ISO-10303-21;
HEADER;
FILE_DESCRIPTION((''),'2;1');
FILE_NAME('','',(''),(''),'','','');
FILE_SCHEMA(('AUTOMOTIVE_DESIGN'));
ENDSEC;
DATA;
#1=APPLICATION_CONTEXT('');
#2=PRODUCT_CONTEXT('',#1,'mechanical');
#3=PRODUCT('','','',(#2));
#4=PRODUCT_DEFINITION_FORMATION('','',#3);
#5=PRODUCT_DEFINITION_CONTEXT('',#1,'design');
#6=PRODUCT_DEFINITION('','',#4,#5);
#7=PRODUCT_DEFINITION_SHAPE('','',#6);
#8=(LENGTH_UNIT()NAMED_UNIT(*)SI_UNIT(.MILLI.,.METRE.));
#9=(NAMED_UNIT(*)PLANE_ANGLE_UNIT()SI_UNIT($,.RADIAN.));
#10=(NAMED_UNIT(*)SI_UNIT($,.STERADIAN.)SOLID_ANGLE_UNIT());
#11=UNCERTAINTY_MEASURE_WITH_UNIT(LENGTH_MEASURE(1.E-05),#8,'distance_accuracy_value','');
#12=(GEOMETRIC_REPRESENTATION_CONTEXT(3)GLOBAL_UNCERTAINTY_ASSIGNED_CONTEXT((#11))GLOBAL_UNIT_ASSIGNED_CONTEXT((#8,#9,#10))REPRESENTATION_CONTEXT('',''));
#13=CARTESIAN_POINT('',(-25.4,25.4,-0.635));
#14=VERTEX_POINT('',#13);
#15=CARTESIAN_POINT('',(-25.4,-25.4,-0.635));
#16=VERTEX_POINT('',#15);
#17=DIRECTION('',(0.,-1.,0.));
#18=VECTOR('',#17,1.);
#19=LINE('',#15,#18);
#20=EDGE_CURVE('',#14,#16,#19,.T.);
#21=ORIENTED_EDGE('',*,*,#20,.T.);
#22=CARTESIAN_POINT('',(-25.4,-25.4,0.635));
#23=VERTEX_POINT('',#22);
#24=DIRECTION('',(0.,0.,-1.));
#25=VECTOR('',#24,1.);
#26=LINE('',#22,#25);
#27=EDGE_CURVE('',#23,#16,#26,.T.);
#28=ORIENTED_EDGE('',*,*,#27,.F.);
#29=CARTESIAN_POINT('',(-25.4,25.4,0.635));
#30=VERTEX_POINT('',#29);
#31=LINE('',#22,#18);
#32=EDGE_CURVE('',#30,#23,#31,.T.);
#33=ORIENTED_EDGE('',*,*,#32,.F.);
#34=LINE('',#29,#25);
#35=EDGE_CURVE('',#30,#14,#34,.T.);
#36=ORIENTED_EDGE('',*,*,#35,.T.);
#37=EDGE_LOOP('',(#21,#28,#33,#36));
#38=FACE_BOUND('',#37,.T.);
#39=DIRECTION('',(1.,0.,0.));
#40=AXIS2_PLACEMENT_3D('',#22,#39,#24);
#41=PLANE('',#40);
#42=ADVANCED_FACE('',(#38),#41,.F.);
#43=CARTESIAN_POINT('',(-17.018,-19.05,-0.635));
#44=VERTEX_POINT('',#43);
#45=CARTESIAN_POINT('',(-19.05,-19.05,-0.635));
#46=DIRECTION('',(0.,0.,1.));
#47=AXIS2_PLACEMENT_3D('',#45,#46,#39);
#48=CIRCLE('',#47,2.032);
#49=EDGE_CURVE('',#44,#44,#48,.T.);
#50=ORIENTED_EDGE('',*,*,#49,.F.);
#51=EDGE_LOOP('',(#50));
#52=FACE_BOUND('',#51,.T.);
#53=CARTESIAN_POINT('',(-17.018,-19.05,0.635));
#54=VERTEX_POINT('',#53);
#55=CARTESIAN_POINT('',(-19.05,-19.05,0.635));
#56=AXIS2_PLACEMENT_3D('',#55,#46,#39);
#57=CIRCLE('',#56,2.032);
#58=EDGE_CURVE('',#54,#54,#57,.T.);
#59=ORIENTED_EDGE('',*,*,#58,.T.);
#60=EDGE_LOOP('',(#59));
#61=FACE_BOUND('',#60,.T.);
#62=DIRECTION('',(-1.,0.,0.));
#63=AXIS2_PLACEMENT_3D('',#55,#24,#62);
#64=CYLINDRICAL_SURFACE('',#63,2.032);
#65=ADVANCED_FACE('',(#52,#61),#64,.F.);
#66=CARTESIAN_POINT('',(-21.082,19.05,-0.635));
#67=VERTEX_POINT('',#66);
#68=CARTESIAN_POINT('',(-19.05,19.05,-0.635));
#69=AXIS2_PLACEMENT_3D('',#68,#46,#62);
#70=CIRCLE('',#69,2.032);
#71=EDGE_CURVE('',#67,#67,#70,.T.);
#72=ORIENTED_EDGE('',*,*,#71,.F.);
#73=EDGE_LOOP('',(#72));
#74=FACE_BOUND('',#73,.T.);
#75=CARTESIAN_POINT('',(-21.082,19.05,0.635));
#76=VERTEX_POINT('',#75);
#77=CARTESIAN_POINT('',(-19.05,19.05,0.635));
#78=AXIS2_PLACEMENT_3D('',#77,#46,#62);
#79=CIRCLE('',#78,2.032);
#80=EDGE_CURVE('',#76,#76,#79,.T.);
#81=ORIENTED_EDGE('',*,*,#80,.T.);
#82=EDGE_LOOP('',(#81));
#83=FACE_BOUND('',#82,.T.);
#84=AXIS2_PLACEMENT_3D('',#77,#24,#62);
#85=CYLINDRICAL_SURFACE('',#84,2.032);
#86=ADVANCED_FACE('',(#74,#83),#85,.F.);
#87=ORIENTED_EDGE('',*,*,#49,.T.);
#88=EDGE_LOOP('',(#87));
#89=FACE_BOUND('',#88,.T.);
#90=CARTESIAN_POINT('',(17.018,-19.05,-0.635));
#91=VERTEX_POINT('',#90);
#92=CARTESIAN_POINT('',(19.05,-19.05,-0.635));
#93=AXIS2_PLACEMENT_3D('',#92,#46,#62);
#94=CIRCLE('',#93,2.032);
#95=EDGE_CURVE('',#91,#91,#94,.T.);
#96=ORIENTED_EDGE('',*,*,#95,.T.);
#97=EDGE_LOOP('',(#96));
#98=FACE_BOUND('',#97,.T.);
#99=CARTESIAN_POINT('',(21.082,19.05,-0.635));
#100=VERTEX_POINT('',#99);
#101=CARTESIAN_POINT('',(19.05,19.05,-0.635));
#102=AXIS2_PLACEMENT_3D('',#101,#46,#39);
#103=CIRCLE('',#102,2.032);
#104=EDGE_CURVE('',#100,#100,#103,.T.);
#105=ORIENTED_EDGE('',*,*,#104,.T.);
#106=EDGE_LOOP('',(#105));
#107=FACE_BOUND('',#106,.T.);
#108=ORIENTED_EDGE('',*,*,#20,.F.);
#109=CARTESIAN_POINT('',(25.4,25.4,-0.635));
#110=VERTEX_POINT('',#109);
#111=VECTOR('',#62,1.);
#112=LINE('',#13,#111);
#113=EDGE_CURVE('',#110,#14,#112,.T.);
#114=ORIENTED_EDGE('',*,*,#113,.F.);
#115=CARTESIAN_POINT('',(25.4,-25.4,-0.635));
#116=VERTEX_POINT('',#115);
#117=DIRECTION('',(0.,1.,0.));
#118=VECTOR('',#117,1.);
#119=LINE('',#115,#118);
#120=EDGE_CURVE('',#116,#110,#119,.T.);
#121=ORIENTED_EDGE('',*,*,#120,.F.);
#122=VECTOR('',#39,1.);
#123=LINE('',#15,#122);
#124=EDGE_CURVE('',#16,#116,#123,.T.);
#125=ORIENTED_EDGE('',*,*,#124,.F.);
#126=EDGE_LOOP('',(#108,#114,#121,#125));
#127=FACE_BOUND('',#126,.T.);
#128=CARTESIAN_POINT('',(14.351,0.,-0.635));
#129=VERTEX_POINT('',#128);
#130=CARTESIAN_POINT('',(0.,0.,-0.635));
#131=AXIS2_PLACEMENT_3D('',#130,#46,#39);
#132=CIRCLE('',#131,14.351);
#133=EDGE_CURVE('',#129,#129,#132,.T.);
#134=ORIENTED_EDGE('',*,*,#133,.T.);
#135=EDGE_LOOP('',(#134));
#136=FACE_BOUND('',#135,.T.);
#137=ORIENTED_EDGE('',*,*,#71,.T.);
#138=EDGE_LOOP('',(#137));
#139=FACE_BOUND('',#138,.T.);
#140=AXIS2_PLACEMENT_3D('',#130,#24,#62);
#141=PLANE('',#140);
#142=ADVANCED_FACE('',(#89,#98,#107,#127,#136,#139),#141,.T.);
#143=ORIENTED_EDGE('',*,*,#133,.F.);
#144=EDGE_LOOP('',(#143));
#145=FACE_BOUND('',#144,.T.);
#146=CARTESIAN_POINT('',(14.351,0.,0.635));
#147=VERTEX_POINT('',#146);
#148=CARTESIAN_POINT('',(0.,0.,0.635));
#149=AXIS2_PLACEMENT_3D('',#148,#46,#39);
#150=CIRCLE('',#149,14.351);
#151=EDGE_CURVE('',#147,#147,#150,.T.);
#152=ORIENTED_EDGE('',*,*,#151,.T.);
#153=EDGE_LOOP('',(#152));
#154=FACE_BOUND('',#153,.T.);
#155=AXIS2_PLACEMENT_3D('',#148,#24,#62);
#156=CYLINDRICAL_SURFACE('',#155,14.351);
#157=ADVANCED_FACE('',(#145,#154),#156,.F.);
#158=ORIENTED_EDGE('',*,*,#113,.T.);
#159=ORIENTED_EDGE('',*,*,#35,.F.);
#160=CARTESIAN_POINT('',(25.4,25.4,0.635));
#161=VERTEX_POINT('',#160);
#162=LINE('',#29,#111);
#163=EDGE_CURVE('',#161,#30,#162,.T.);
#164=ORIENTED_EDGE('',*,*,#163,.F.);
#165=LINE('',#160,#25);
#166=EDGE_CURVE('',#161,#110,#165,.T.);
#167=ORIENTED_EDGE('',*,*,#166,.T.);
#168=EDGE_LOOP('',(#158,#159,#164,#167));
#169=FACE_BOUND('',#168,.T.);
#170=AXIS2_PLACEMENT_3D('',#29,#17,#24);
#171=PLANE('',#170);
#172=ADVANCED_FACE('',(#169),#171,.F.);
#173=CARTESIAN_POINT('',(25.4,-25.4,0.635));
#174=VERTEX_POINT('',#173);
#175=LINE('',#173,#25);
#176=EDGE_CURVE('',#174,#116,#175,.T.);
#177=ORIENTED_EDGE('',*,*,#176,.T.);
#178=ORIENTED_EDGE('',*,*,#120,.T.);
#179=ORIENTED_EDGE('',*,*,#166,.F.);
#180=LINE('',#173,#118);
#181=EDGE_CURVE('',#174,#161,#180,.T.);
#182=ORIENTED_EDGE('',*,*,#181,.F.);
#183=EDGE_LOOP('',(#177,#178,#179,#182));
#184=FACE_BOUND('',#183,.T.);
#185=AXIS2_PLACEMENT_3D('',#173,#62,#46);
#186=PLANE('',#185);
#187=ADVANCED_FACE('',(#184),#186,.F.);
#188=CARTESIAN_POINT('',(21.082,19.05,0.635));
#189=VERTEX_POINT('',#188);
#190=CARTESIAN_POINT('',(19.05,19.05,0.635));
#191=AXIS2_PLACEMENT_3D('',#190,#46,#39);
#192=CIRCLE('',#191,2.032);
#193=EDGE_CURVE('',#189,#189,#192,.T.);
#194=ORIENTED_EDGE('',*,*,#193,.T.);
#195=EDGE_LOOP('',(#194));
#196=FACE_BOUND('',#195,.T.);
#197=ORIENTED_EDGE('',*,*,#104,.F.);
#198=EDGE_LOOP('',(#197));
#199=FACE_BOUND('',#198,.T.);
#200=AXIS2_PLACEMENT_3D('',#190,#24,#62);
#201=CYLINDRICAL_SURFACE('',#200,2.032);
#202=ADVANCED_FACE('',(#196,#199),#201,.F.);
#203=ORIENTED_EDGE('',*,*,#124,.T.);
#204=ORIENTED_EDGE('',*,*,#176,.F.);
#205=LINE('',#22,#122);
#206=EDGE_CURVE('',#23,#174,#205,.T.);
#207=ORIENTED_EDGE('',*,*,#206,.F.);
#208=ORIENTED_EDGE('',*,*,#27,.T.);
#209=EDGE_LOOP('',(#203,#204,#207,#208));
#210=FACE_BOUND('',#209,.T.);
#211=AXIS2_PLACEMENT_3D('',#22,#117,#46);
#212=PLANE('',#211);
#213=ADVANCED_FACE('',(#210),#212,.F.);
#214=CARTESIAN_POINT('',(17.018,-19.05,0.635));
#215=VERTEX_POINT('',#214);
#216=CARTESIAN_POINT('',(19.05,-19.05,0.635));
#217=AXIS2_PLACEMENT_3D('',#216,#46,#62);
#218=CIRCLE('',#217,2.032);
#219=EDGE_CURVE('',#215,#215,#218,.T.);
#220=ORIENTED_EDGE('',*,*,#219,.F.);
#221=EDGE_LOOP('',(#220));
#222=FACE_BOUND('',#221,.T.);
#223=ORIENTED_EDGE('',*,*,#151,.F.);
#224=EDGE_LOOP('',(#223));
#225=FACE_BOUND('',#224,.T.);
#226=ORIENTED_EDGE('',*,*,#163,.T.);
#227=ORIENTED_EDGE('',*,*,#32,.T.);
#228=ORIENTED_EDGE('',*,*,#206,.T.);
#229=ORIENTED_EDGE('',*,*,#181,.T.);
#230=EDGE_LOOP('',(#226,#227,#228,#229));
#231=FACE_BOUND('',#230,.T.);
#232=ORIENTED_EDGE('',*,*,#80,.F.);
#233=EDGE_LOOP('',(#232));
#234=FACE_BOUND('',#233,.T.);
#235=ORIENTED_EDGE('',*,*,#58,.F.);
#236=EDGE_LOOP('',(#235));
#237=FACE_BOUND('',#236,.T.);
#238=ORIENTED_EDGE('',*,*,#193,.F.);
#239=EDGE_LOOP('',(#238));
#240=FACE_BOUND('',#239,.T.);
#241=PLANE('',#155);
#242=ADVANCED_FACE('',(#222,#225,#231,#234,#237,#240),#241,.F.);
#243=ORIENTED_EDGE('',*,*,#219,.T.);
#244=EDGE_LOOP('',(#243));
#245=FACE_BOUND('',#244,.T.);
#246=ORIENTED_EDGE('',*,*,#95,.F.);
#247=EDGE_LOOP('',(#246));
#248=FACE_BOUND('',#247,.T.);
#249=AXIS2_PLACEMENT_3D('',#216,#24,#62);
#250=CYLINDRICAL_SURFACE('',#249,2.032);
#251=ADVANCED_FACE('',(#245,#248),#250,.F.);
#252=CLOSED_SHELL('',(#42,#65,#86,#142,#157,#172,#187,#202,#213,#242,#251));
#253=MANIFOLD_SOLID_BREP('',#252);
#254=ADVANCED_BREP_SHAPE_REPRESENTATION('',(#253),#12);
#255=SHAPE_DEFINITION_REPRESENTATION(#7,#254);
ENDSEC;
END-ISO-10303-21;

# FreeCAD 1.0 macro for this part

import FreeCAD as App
import Part
import Sketcher

V = App.Vector
Q = App.Units.Quantity

doc = App.newDocument("Part")
body = doc.addObject("PartDesign::Body", "Body")

sketch1 = body.newObject("Sketcher::SketchObject", "Sketch")
sketch1.AttachmentSupport = (doc.getObject("XY_Plane"), [""])
sketch1.MapMode = "FlatFace"
sketch1.addGeometry(Part.LineSegment(V(-25.4, 25.4, 0), V(-25.4, -25.4, 0)), False)
sketch1.addGeometry(Part.LineSegment(V(-25.4, -25.4, 0), V(25.4, -25.4, 0)), False)
sketch1.addGeometry(Part.LineSegment(V(25.4, -25.4, 0), V(25.4, 25.4, 0)), False)
sketch1.addGeometry(Part.LineSegment(V(25.4, 25.4, 0), V(-25.4, 25.4, 0)), False)
sketch1.addGeometry(Part.Circle(V(-19.05, -19.05, 0), V(0, 0, 1), 2.032), False)
sketch1.addGeometry(Part.Circle(V(19.05, -19.05, 0), V(0, 0, 1), 2.032), False)
sketch1.addGeometry(Part.Circle(V(-19.05, 19.05, 0), V(0, 0, 1), 2.032), False)
sketch1.addGeometry(Part.Circle(V(0, 0, 0), V(0, 0, 1), 14.351), False)
sketch1.addGeometry(Part.Circle(V(19.05, 19.05, 0), V(0, 0, 1), 2.032), False)
sketch1.addConstraint(Sketcher.Constraint("Coincident", 0, 2, 1, 1))
sketch1.addConstraint(Sketcher.Constraint("Coincident", 1, 2, 2, 1))
sketch1.addConstraint(Sketcher.Constraint("Coincident", 2, 2, 3, 1))
sketch1.addConstraint(Sketcher.Constraint("Coincident", 3, 2, 0, 1))
sketch1.addConstraint(Sketcher.Constraint("Vertical", 0))
sketch1.addConstraint(Sketcher.Constraint("Horizontal", 1))
sketch1.addConstraint(Sketcher.Constraint("Vertical", 2))
sketch1.addConstraint(Sketcher.Constraint("Horizontal", 3))
sketch1.addConstraint(Sketcher.Constraint("Coincident", 7, 3, -1, 1))
sketch1.addConstraint(Sketcher.Constraint("Equal", 4, 5))
sketch1.addConstraint(Sketcher.Constraint("Equal", 5, 6))
sketch1.addConstraint(Sketcher.Constraint("Equal", 6, 8))
sketch1.addConstraint(Sketcher.Constraint("Symmetric", 5, 3, 6, 3, -1, 1))
sketch1.addConstraint(Sketcher.Constraint("Symmetric", 4, 3, 8, 3, -1, 1))
sketch1.addConstraint(Sketcher.Constraint("Symmetric", 0, 2, 2, 2, -1, 1))
sketch1.addConstraint(Sketcher.Constraint("Symmetric", 4, 3, 5, 3, -2))
sketch1.addConstraint(Sketcher.Constraint("Equal", 3, 0))
sketch1.addConstraint(Sketcher.Constraint("Diameter", 4, Q("0.16 in")))
sketch1.addConstraint(Sketcher.Constraint("Diameter", 7, Q("1.13 in")))
sketch1.addConstraint(Sketcher.Constraint("DistanceX", 1, 1, 1, 2, Q("2 in")))
sketch1.addConstraint(Sketcher.Constraint("DistanceX", 4, 3, 5, 3, Q("1.5 in")))
sketch1.addConstraint(Sketcher.Constraint("DistanceY", 4, 3, 6, 3, Q("1.5 in")))
pad1 = body.newObject("PartDesign::Pad", "Pad")
pad1.Profile = sketch1
pad1.Length = Q("0.05 in")
pad1.Midplane = True

doc.recompute()
